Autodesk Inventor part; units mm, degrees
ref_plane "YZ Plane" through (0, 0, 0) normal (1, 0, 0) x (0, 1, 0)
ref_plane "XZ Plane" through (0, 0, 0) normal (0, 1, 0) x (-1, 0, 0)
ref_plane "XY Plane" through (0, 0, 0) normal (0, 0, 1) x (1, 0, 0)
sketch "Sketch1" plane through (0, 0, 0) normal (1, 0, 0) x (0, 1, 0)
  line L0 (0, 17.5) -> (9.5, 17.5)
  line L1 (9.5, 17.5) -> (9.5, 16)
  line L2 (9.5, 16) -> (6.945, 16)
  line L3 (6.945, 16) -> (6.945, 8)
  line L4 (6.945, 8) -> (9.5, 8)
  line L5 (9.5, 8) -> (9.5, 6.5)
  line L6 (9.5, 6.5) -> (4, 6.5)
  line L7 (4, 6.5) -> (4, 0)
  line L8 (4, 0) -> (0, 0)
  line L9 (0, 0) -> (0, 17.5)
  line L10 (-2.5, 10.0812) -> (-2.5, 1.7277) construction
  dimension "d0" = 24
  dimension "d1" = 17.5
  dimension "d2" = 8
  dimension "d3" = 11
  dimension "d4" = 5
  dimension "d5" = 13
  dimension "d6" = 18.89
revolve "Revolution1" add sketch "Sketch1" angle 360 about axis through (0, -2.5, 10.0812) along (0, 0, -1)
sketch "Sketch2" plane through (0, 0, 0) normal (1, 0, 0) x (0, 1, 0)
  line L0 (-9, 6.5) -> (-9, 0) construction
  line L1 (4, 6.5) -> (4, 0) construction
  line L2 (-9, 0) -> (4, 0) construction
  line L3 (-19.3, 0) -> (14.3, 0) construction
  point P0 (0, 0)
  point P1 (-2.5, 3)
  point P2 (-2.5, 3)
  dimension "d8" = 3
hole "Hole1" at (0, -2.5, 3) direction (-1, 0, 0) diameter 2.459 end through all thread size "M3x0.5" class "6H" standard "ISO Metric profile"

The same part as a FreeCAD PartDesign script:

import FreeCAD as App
import Part
import Sketcher

V = App.Vector
Q = App.Units.Quantity


def add_polygon(sketch, points):
    """Adds a closed chain of lines whose ends are joined by coincident constraints."""
    first, n = sketch.GeometryCount, len(points)
    for a, b in zip(points, points[1:] + points[:1]):
        sketch.addGeometry(Part.LineSegment(App.Vector(*a, 0), App.Vector(*b, 0)), False)
    for i in range(n):
        sketch.addConstraint(Sketcher.Constraint("Coincident", first + i, 2, first + (i + 1) % n, 1))

doc = App.newDocument("Part")
body = doc.addObject("PartDesign::Body", "Body")

# Sketch on YZ plane
sketch1 = body.newObject("Sketcher::SketchObject", "Sketch")
sketch1.AttachmentSupport = (doc.getObject("YZ_Plane"), [""])
sketch1.MapMode = "FlatFace"
add_polygon(sketch1, [(9.5, 17.5), (0, 17.5), (0, 0), (4, 0), (4, 6.5), (9.5, 6.5), (9.5, 8), (6.9, 8), (6.9, 16), (9.5, 16)])  # lines 0-9
sketch1.addGeometry(Part.LineSegment(V(-2.5, 17.5, 0), V(-2.5, 0, 0)), True)  # axis
sketch1.addConstraint(Sketcher.Constraint("Horizontal", 0))
sketch1.addConstraint(Sketcher.Constraint("Vertical", 1))
sketch1.addConstraint(Sketcher.Constraint("Horizontal", 2))
sketch1.addConstraint(Sketcher.Constraint("Vertical", 3))
sketch1.addConstraint(Sketcher.Constraint("Horizontal", 4))
sketch1.addConstraint(Sketcher.Constraint("Vertical", 5))
sketch1.addConstraint(Sketcher.Constraint("Horizontal", 6))
sketch1.addConstraint(Sketcher.Constraint("Vertical", 7))
sketch1.addConstraint(Sketcher.Constraint("Horizontal", 8))
sketch1.addConstraint(Sketcher.Constraint("Vertical", 9))
sketch1.addConstraint(Sketcher.Constraint("Vertical", 10))
sketch1.addConstraint(Sketcher.Constraint("Coincident", 1, 2, -1, 1))
sketch1.addConstraint(Sketcher.Constraint("PointOnObject", 10, 2, -1))
sketch1.addConstraint(Sketcher.Constraint("Horizontal", 9, 2, 10, 1))
sketch1.addConstraint(Sketcher.Constraint("Vertical", 5, 2, 8, 2))
sketch1.addConstraint(Sketcher.Constraint("Equal", 5, 9))
sketch1.addConstraint(Sketcher.Constraint("DistanceY", 7, 1, 7, 2, Q("8 mm")))
sketch1.addConstraint(Sketcher.Constraint("DistanceY", 1, 2, 1, 1, Q("17.5 mm")))
sketch1.addConstraint(Sketcher.Constraint("DistanceY", -1, 1, 5, 2, Q("8 mm")))
sketch1.addConstraint(Sketcher.Constraint("DistanceX", 2, 1, 2, 2, Q("4 mm")))
sketch1.addConstraint(Sketcher.Constraint("DistanceX", 0, 2, 0, 1, Q("9.5 mm")))
sketch1.addConstraint(Sketcher.Constraint("DistanceX", 10, 1, 9, 2, Q("12 mm")))
sketch1.addConstraint(Sketcher.Constraint("DistanceX", 6, 2, 6, 1, Q("2.555 mm")))
revolution = body.newObject("PartDesign::Revolution", "Revolution")
revolution.Profile = sketch1
revolution.ReferenceAxis = (sketch1, ["Axis0"])
revolution.Angle = 360

# Sketch on YZ plane
sketch2 = body.newObject("Sketcher::SketchObject", "Sketch001")
sketch2.AttachmentSupport = (doc.getObject("YZ_Plane"), [""])
sketch2.MapMode = "FlatFace"
sketch2.addGeometry(Part.Circle(V(-2.5, 3, 0), V(0, 0, 1), 1.2), False)
sketch2.addConstraint(Sketcher.Constraint("Diameter", 0, Q("2.459 mm")))
sketch2.addConstraint(Sketcher.Constraint("DistanceY", -1, 1, 0, 3, Q("3 mm")))
sketch2.addConstraint(Sketcher.Constraint("DistanceX", 0, 3, -1, 1, Q("2.5 mm")))
doc.recompute()
hole = body.newObject("PartDesign::Hole", "Hole")
hole.Profile = sketch2
hole.ThreadType = "None"
hole.Diameter = 2.459
hole.DepthType = "ThroughAll"

doc.recompute()
